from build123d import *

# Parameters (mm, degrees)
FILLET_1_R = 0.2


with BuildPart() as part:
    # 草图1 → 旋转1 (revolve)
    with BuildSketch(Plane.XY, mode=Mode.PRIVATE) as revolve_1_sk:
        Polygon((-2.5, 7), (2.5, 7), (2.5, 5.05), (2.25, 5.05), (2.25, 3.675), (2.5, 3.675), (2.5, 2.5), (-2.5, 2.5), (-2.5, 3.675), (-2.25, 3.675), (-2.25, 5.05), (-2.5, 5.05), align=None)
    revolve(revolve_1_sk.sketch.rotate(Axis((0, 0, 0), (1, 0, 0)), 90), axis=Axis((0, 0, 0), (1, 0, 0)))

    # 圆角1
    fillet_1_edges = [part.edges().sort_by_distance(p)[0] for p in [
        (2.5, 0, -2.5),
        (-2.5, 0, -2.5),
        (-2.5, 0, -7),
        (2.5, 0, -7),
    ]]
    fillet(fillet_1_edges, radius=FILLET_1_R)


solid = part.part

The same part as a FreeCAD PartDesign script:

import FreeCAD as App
import Part
import Sketcher
from FreeCAD import Vector


def edges_at(feature, points):
    """Names of the edges that pass closest to the given points."""
    edges = feature.Shape.Edges
    near = lambda p: min(range(len(edges)), key=lambda i: edges[i].distToShape(Part.Vertex(*p))[0])
    return sorted({f"Edge{near(p) + 1}" for p in points})

doc = App.newDocument("Part")
body = doc.addObject("PartDesign::Body", "Body")

sketch1 = body.newObject("Sketcher::SketchObject", "Sketch")
sketch1.AttachmentSupport = (doc.getObject("XY_Plane"), [""])
sketch1.MapMode = "FlatFace"
sketch1.addGeometry([
    Part.LineSegment(Vector(2.5, 7, 0), Vector(-2.5, 7, 0)),
    Part.LineSegment(Vector(-2.5, 7, 0), Vector(-2.5, 5.05, 0)),
    Part.LineSegment(Vector(-2.5, 5.05, 0), Vector(-2.25, 5.05, 0)),
    Part.LineSegment(Vector(-2.25, 5.05, 0), Vector(-2.25, 3.675, 0)),
    Part.LineSegment(Vector(-2.25, 3.675, 0), Vector(-2.5, 3.675, 0)),
    Part.LineSegment(Vector(-2.5, 3.675, 0), Vector(-2.5, 2.5, 0)),
    Part.LineSegment(Vector(-2.5, 2.5, 0), Vector(2.5, 2.5, 0)),
    Part.LineSegment(Vector(2.5, 2.5, 0), Vector(2.5, 3.675, 0)),
    Part.LineSegment(Vector(2.5, 3.675, 0), Vector(2.25, 3.675, 0)),
    Part.LineSegment(Vector(2.25, 3.675, 0), Vector(2.25, 5.05, 0)),
    Part.LineSegment(Vector(2.25, 5.05, 0), Vector(2.5, 5.05, 0)),
    Part.LineSegment(Vector(2.5, 5.05, 0), Vector(2.5, 7, 0)),
], False)
sketch1.addConstraint([
    Sketcher.Constraint("Coincident", 0, 2, 1, 1),
    Sketcher.Constraint("Coincident", 1, 2, 2, 1),
    Sketcher.Constraint("Coincident", 2, 2, 3, 1),
    Sketcher.Constraint("Coincident", 3, 2, 4, 1),
    Sketcher.Constraint("Coincident", 4, 2, 5, 1),
    Sketcher.Constraint("Coincident", 5, 2, 6, 1),
    Sketcher.Constraint("Coincident", 6, 2, 7, 1),
    Sketcher.Constraint("Coincident", 7, 2, 8, 1),
    Sketcher.Constraint("Coincident", 8, 2, 9, 1),
    Sketcher.Constraint("Coincident", 9, 2, 10, 1),
    Sketcher.Constraint("Coincident", 10, 2, 11, 1),
    Sketcher.Constraint("Coincident", 11, 2, 0, 1),
    Sketcher.Constraint("Horizontal", 0),
    Sketcher.Constraint("Vertical", 1),
    Sketcher.Constraint("Horizontal", 2),
    Sketcher.Constraint("Vertical", 3),
    Sketcher.Constraint("Horizontal", 4),
    Sketcher.Constraint("Vertical", 5),
    Sketcher.Constraint("Horizontal", 6),
    Sketcher.Constraint("Vertical", 7),
    Sketcher.Constraint("Horizontal", 8),
    Sketcher.Constraint("Vertical", 9),
    Sketcher.Constraint("Horizontal", 10),
    Sketcher.Constraint("Vertical", 11),
    Sketcher.Constraint("Symmetric", 4, 2, 7, 2, -2),
    Sketcher.Constraint("Symmetric", 2, 2, 9, 2, -2),
    Sketcher.Constraint("Vertical", 1, 2, 4, 2),
    Sketcher.Constraint("Vertical", 7, 2, 10, 2),
    Sketcher.Constraint("DistanceX", 0, 2, 0, 1, 5.0),
    Sketcher.Constraint("DistanceY", -1, 1, 0, 2, 7.0),
    Sketcher.Constraint("DistanceX", 2, 1, 2, 2, 0.25),
    Sketcher.Constraint("DistanceY", 1, 2, 1, 1, 1.95),
    Sketcher.Constraint("DistanceY", -1, 1, 5, 2, 2.5),
    Sketcher.Constraint("DistanceY", 3, 2, 3, 1, 1.375),
])
revolution = body.newObject("PartDesign::Revolution", "Revolution")
revolution.Profile = sketch1
revolution.ReferenceAxis = (sketch1, ["H_Axis"])
revolution.Angle = 360
doc.recompute()

fillet = body.newObject("PartDesign::Fillet", "Fillet")
fillet.Base = (revolution, edges_at(revolution, [
    (2.5, 0, -2.5),
    (-2.5, 0, -2.5),
    (-2.5, 0, -7),
    (2.5, 0, -7),
]))
fillet.Radius = 0.2

doc.recompute()
